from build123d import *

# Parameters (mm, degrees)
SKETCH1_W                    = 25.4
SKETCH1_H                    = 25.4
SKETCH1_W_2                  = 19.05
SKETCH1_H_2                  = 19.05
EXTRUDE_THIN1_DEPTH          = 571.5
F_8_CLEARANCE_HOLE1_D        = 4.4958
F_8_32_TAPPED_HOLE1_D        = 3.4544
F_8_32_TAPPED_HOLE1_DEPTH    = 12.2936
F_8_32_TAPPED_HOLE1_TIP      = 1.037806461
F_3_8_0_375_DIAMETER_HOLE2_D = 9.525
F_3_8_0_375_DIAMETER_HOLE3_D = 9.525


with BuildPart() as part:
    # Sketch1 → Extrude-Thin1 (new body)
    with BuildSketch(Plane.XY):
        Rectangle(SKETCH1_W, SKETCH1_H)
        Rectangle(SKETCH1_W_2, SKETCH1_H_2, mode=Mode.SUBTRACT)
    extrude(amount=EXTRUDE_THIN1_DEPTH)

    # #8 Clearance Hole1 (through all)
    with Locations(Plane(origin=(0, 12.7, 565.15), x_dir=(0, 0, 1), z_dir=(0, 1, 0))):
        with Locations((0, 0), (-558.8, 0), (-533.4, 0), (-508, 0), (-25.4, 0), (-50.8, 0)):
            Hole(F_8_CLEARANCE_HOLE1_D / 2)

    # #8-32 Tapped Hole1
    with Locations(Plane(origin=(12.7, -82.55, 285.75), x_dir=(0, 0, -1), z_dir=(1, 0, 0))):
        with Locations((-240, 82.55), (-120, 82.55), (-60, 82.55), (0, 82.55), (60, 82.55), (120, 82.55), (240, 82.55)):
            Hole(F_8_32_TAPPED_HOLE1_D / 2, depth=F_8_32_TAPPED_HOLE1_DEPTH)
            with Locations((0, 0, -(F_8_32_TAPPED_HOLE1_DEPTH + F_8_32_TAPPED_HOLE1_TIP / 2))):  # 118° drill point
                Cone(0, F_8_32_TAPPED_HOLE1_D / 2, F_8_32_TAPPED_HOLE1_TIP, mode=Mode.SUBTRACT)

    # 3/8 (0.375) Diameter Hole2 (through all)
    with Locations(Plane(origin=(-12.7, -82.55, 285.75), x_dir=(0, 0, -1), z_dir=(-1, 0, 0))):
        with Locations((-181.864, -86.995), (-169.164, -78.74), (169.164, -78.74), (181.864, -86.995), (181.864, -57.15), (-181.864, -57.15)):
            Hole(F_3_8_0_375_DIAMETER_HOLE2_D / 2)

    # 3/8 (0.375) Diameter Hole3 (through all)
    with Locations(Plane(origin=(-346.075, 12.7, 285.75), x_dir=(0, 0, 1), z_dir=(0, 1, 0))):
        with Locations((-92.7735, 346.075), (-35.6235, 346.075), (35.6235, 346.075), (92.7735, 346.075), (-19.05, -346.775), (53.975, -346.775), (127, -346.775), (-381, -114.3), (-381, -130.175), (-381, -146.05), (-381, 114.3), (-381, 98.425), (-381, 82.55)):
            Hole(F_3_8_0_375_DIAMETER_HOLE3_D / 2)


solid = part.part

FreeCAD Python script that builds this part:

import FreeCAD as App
import Part
import Sketcher
Q = App.Units.Quantity

doc = App.newDocument("Part")
body = doc.addObject("PartDesign::Body", "Body")

# Sketch on XY plane
sketch1 = body.newObject("Sketcher::SketchObject", "Sketch")
sketch1.AttachmentSupport = (doc.getObject("XY_Plane"), [""])
sketch1.MapMode = "FlatFace"
sketch1.addGeometry(Part.LineSegment(App.Vector(-13, 13, 0), App.Vector(-13, -13, 0)), False)
sketch1.addGeometry(Part.LineSegment(App.Vector(-13, -13, 0), App.Vector(13, -13, 0)), False)
sketch1.addGeometry(Part.LineSegment(App.Vector(13, -13, 0), App.Vector(13, 13, 0)), False)
sketch1.addGeometry(Part.LineSegment(App.Vector(13, 13, 0), App.Vector(-13, 13, 0)), False)
sketch1.addGeometry(Part.LineSegment(App.Vector(10, -10, 0), App.Vector(-10, -10, 0)), False)
sketch1.addGeometry(Part.LineSegment(App.Vector(-10, -10, 0), App.Vector(-10, 10, 0)), False)
sketch1.addGeometry(Part.LineSegment(App.Vector(-10, 10, 0), App.Vector(10, 10, 0)), False)
sketch1.addGeometry(Part.LineSegment(App.Vector(10, 10, 0), App.Vector(10, -10, 0)), False)
sketch1.addConstraint(Sketcher.Constraint("Coincident", 0, 2, 1, 1))
sketch1.addConstraint(Sketcher.Constraint("Coincident", 1, 2, 2, 1))
sketch1.addConstraint(Sketcher.Constraint("Coincident", 2, 2, 3, 1))
sketch1.addConstraint(Sketcher.Constraint("Coincident", 3, 2, 0, 1))
sketch1.addConstraint(Sketcher.Constraint("Coincident", 4, 2, 5, 1))
sketch1.addConstraint(Sketcher.Constraint("Coincident", 5, 2, 6, 1))
sketch1.addConstraint(Sketcher.Constraint("Coincident", 6, 2, 7, 1))
sketch1.addConstraint(Sketcher.Constraint("Coincident", 7, 2, 4, 1))
sketch1.addConstraint(Sketcher.Constraint("Vertical", 0))
sketch1.addConstraint(Sketcher.Constraint("Horizontal", 1))
sketch1.addConstraint(Sketcher.Constraint("Vertical", 2))
sketch1.addConstraint(Sketcher.Constraint("Horizontal", 3))
sketch1.addConstraint(Sketcher.Constraint("Horizontal", 4))
sketch1.addConstraint(Sketcher.Constraint("Vertical", 5))
sketch1.addConstraint(Sketcher.Constraint("Horizontal", 6))
sketch1.addConstraint(Sketcher.Constraint("Vertical", 7))
sketch1.addConstraint(Sketcher.Constraint("Symmetric", 0, 2, 2, 2, -1, 1))
sketch1.addConstraint(Sketcher.Constraint("Symmetric", 4, 2, 6, 2, -1, 1))
sketch1.addConstraint(Sketcher.Constraint("Equal", 3, 0))
sketch1.addConstraint(Sketcher.Constraint("Equal", 6, 5))
sketch1.addConstraint(Sketcher.Constraint("DistanceX", 1, 1, 1, 2, Q("1 in")))
sketch1.addConstraint(Sketcher.Constraint("DistanceX", 4, 2, 4, 1, Q("0.75 in")))
pad1 = body.newObject("PartDesign::Pad", "Pad")
pad1.Profile = sketch1
pad1.Length = Q("22.5 in")

# Sketch on XZ plane
sketch2 = body.newObject("Sketcher::SketchObject", "Sketch001")
sketch2.AttachmentSupport = (doc.getObject("XZ_Plane"), [""])
sketch2.MapMode = "FlatFace"
sketch2.AttachmentOffset = App.Placement(App.Vector(0, 0, -0.5 * 25.4), App.Rotation())
sketch2.addGeometry(Part.Circle(App.Vector(0, 565.1, 0), App.Vector(0, 0, 1), 2.2), False)
sketch2.addGeometry(Part.Circle(App.Vector(0, 6.3, 0), App.Vector(0, 0, 1), 2.2), False)
sketch2.addGeometry(Part.Circle(App.Vector(0, 31.8, 0), App.Vector(0, 0, 1), 2.2), False)
sketch2.addGeometry(Part.Circle(App.Vector(0, 57.1, 0), App.Vector(0, 0, 1), 2.2), False)
sketch2.addGeometry(Part.Circle(App.Vector(0, 539.8, 0), App.Vector(0, 0, 1), 2.2), False)
sketch2.addGeometry(Part.Circle(App.Vector(0, 514.4, 0), App.Vector(0, 0, 1), 2.2), False)
sketch2.addConstraint(Sketcher.Constraint("Equal", 0, 1))
sketch2.addConstraint(Sketcher.Constraint("Equal", 1, 2))
sketch2.addConstraint(Sketcher.Constraint("Equal", 2, 3))
sketch2.addConstraint(Sketcher.Constraint("Equal", 3, 4))
sketch2.addConstraint(Sketcher.Constraint("Equal", 4, 5))
sketch2.addConstraint(Sketcher.Constraint("PointOnObject", 0, 3, -2))
sketch2.addConstraint(Sketcher.Constraint("PointOnObject", 1, 3, -2))
sketch2.addConstraint(Sketcher.Constraint("PointOnObject", 2, 3, -2))
sketch2.addConstraint(Sketcher.Constraint("PointOnObject", 3, 3, -2))
sketch2.addConstraint(Sketcher.Constraint("PointOnObject", 4, 3, -2))
sketch2.addConstraint(Sketcher.Constraint("PointOnObject", 5, 3, -2))
sketch2.addConstraint(Sketcher.Constraint("Diameter", 0, Q("0.177 in")))
sketch2.addConstraint(Sketcher.Constraint("DistanceY", 1, 3, 0, 3, Q("22 in")))
sketch2.addConstraint(Sketcher.Constraint("DistanceY", 1, 3, 2, 3, Q("1 in")))
sketch2.addConstraint(Sketcher.Constraint("DistanceY", 2, 3, 3, 3, Q("1 in")))
sketch2.addConstraint(Sketcher.Constraint("DistanceY", 4, 3, 0, 3, Q("1 in")))
sketch2.addConstraint(Sketcher.Constraint("DistanceY", 5, 3, 4, 3, Q("1 in")))
sketch2.addConstraint(Sketcher.Constraint("DistanceY", -1, 1, 0, 3, Q("22.25 in")))
doc.recompute()
hole = body.newObject("PartDesign::Hole", "Hole")
hole.Profile = sketch2
hole.ThreadType = "None"
hole.Diameter = Q("0.177 in")
hole.DepthType = "ThroughAll"
hole.Reversed = True

# Sketch on YZ plane
sketch3 = body.newObject("Sketcher::SketchObject", "Sketch002")
sketch3.AttachmentSupport = (doc.getObject("YZ_Plane"), [""])
sketch3.MapMode = "FlatFace"
sketch3.AttachmentOffset = App.Placement(App.Vector(0, 0, 0.5 * 25.4), App.Rotation())
sketch3.addGeometry(Part.Circle(App.Vector(0, 525.8, 0), App.Vector(0, 0, 1), 1.7), False)
sketch3.addGeometry(Part.Circle(App.Vector(0, 405.8, 0), App.Vector(0, 0, 1), 1.7), False)
sketch3.addGeometry(Part.Circle(App.Vector(0, 345.8, 0), App.Vector(0, 0, 1), 1.7), False)
sketch3.addGeometry(Part.Circle(App.Vector(0, 285.8, 0), App.Vector(0, 0, 1), 1.7), False)
sketch3.addGeometry(Part.Circle(App.Vector(0, 225.8, 0), App.Vector(0, 0, 1), 1.7), False)
sketch3.addGeometry(Part.Circle(App.Vector(0, 165.8, 0), App.Vector(0, 0, 1), 1.7), False)
sketch3.addGeometry(Part.Circle(App.Vector(0, 45.8, 0), App.Vector(0, 0, 1), 1.7), False)
sketch3.addConstraint(Sketcher.Constraint("Equal", 0, 1))
sketch3.addConstraint(Sketcher.Constraint("Equal", 1, 2))
sketch3.addConstraint(Sketcher.Constraint("Equal", 2, 3))
sketch3.addConstraint(Sketcher.Constraint("Equal", 3, 4))
sketch3.addConstraint(Sketcher.Constraint("Equal", 4, 5))
sketch3.addConstraint(Sketcher.Constraint("Equal", 5, 6))
sketch3.addConstraint(Sketcher.Constraint("PointOnObject", 0, 3, -2))
sketch3.addConstraint(Sketcher.Constraint("PointOnObject", 1, 3, -2))
sketch3.addConstraint(Sketcher.Constraint("PointOnObject", 2, 3, -2))
sketch3.addConstraint(Sketcher.Constraint("PointOnObject", 3, 3, -2))
sketch3.addConstraint(Sketcher.Constraint("PointOnObject", 4, 3, -2))
sketch3.addConstraint(Sketcher.Constraint("PointOnObject", 5, 3, -2))
sketch3.addConstraint(Sketcher.Constraint("PointOnObject", 6, 3, -2))
sketch3.addConstraint(Sketcher.Constraint("Diameter", 0, Q("0.136 in")))
sketch3.addConstraint(Sketcher.Constraint("DistanceY", -1, 1, 3, 3, Q("11.25 in")))
sketch3.addConstraint(Sketcher.Constraint("DistanceY", -1, 1, 0, 3, 525.75))
sketch3.addConstraint(Sketcher.Constraint("DistanceY", -1, 1, 1, 3, 405.75))
sketch3.addConstraint(Sketcher.Constraint("DistanceY", -1, 1, 2, 3, 345.75))
sketch3.addConstraint(Sketcher.Constraint("DistanceY", -1, 1, 4, 3, 225.75))
sketch3.addConstraint(Sketcher.Constraint("DistanceY", -1, 1, 5, 3, 165.75))
sketch3.addConstraint(Sketcher.Constraint("DistanceY", -1, 1, 6, 3, 45.75))
doc.recompute()
hole2 = body.newObject("PartDesign::Hole", "Hole001")
hole2.Profile = sketch3
hole2.ThreadType = "None"
hole2.Diameter = Q("0.136 in")
hole2.DepthType = "Dimension"
hole2.Depth = Q("0.484 in")
hole2.DrillPoint = "Angled"
hole2.DrillPointAngle = 118

# Sketch on YZ plane
sketch4 = body.newObject("Sketcher::SketchObject", "Sketch003")
sketch4.AttachmentSupport = (doc.getObject("YZ_Plane"), [""])
sketch4.MapMode = "FlatFace"
sketch4.AttachmentOffset = App.Placement(App.Vector(0, 0, -0.5 * 25.4), App.Rotation())
sketch4.addGeometry(Part.Circle(App.Vector(4.4, 467.6, 0), App.Vector(0, 0, 1), 4.8), False)
sketch4.addGeometry(Part.Circle(App.Vector(-3.8, 454.9, 0), App.Vector(0, 0, 1), 4.8), False)
sketch4.addGeometry(Part.Circle(App.Vector(-3.8, 116.6, 0), App.Vector(0, 0, 1), 4.8), False)
sketch4.addGeometry(Part.Circle(App.Vector(4.4, 103.9, 0), App.Vector(0, 0, 1), 4.8), False)
sketch4.addGeometry(Part.Circle(App.Vector(-25.4, 103.9, 0), App.Vector(0, 0, 1), 4.8), False)
sketch4.addGeometry(Part.Circle(App.Vector(-25.4, 467.6, 0), App.Vector(0, 0, 1), 4.8), False)
sketch4.addConstraint(Sketcher.Constraint("Equal", 0, 1))
sketch4.addConstraint(Sketcher.Constraint("Equal", 1, 2))
sketch4.addConstraint(Sketcher.Constraint("Equal", 2, 3))
sketch4.addConstraint(Sketcher.Constraint("Equal", 3, 4))
sketch4.addConstraint(Sketcher.Constraint("Equal", 4, 5))
sketch4.addConstraint(Sketcher.Constraint("Horizontal", 3, 3, 4, 3))
sketch4.addConstraint(Sketcher.Constraint("Horizontal", 0, 3, 5, 3))
sketch4.addConstraint(Sketcher.Constraint("Vertical", 1, 3, 2, 3))
sketch4.addConstraint(Sketcher.Constraint("Vertical", 0, 3, 3, 3))
sketch4.addConstraint(Sketcher.Constraint("Vertical", 4, 3, 5, 3))
sketch4.addConstraint(Sketcher.Constraint("Diameter", 0, Q("0.375 in")))
sketch4.addConstraint(Sketcher.Constraint("DistanceX", 4, 3, -1, 1, Q("1 in")))
sketch4.addConstraint(Sketcher.Constraint("DistanceY", 1, 3, 0, 3, Q("0.5 in")))
sketch4.addConstraint(Sketcher.Constraint("DistanceY", 3, 3, 2, 3, Q("0.5 in")))
sketch4.addConstraint(Sketcher.Constraint("DistanceY", -1, 1, 0, 3, Q("18.41 in")))
sketch4.addConstraint(Sketcher.Constraint("DistanceX", 1, 3, -1, 1, Q("0.15 in")))
sketch4.addConstraint(Sketcher.Constraint("DistanceY", -1, 1, 2, 3, Q("4.59 in")))
sketch4.addConstraint(Sketcher.Constraint("DistanceX", -1, 1, 0, 3, Q("0.175 in")))
doc.recompute()
hole3 = body.newObject("PartDesign::Hole", "Hole002")
hole3.Profile = sketch4
hole3.ThreadType = "None"
hole3.Diameter = Q("0.375 in")
hole3.DepthType = "ThroughAll"
hole3.Reversed = True

# Sketch on XZ plane
sketch5 = body.newObject("Sketcher::SketchObject", "Sketch004")
sketch5.AttachmentSupport = (doc.getObject("XZ_Plane"), [""])
sketch5.MapMode = "FlatFace"
sketch5.AttachmentOffset = App.Placement(App.Vector(0, 0, -0.5 * 25.4), App.Rotation())
sketch5.addGeometry(Part.Circle(App.Vector(0, 193, 0), App.Vector(0, 0, 1), 4.8), False)
sketch5.addGeometry(Part.Circle(App.Vector(0, 250.1, 0), App.Vector(0, 0, 1), 4.8), False)
sketch5.addGeometry(Part.Circle(App.Vector(0, 321.4, 0), App.Vector(0, 0, 1), 4.8), False)
sketch5.addGeometry(Part.Circle(App.Vector(0, 378.5, 0), App.Vector(0, 0, 1), 4.8), False)
sketch5.addGeometry(Part.Circle(App.Vector(-692.9, 266.7, 0), App.Vector(0, 0, 1), 4.8), False)
sketch5.addGeometry(Part.Circle(App.Vector(-692.9, 339.7, 0), App.Vector(0, 0, 1), 4.8), False)
sketch5.addGeometry(Part.Circle(App.Vector(-692.9, 412.8, 0), App.Vector(0, 0, 1), 4.8), False)
sketch5.addGeometry(Part.Circle(App.Vector(-460.4, -95.2, 0), App.Vector(0, 0, 1), 4.8), False)
sketch5.addGeometry(Part.Circle(App.Vector(-476.2, -95.2, 0), App.Vector(0, 0, 1), 4.8), False)
sketch5.addGeometry(Part.Circle(App.Vector(-492.1, -95.2, 0), App.Vector(0, 0, 1), 4.8), False)
sketch5.addGeometry(Part.Circle(App.Vector(-231.8, -95.2, 0), App.Vector(0, 0, 1), 4.8), False)
sketch5.addGeometry(Part.Circle(App.Vector(-247.7, -95.2, 0), App.Vector(0, 0, 1), 4.8), False)
sketch5.addGeometry(Part.Circle(App.Vector(-263.5, -95.2, 0), App.Vector(0, 0, 1), 4.8), False)
sketch5.addConstraint(Sketcher.Constraint("Equal", 0, 1))
sketch5.addConstraint(Sketcher.Constraint("Equal", 1, 2))
sketch5.addConstraint(Sketcher.Constraint("Equal", 2, 3))
sketch5.addConstraint(Sketcher.Constraint("Equal", 3, 4))
sketch5.addConstraint(Sketcher.Constraint("Equal", 4, 5))
sketch5.addConstraint(Sketcher.Constraint("Equal", 5, 6))
sketch5.addConstraint(Sketcher.Constraint("Equal", 6, 7))
sketch5.addConstraint(Sketcher.Constraint("Equal", 7, 8))
sketch5.addConstraint(Sketcher.Constraint("Equal", 8, 9))
sketch5.addConstraint(Sketcher.Constraint("Equal", 9, 10))
sketch5.addConstraint(Sketcher.Constraint("Equal", 10, 11))
sketch5.addConstraint(Sketcher.Constraint("Equal", 11, 12))
sketch5.addConstraint(Sketcher.Constraint("PointOnObject", 0, 3, -2))
sketch5.addConstraint(Sketcher.Constraint("PointOnObject", 1, 3, -2))
sketch5.addConstraint(Sketcher.Constraint("PointOnObject", 2, 3, -2))
sketch5.addConstraint(Sketcher.Constraint("PointOnObject", 3, 3, -2))
sketch5.addConstraint(Sketcher.Constraint("Horizontal", 7, 3, 8, 3))
sketch5.addConstraint(Sketcher.Constraint("Horizontal", 8, 3, 9, 3))
sketch5.addConstraint(Sketcher.Constraint("Horizontal", 9, 3, 10, 3))
sketch5.addConstraint(Sketcher.Constraint("Horizontal", 10, 3, 11, 3))
sketch5.addConstraint(Sketcher.Constraint("Horizontal", 11, 3, 12, 3))
sketch5.addConstraint(Sketcher.Constraint("Vertical", 4, 3, 5, 3))
sketch5.addConstraint(Sketcher.Constraint("Vertical", 5, 3, 6, 3))
sketch5.addConstraint(Sketcher.Constraint("Diameter", 0, Q("0.375 in")))
sketch5.addConstraint(Sketcher.Constraint("DistanceY", 7, 3, 6, 3, Q("20 in")))
sketch5.addConstraint(Sketcher.Constraint("DistanceX", 7, 3, 10, 3, Q("9 in")))
sketch5.addConstraint(Sketcher.Constraint("DistanceX", 8, 3, 11, 3, Q("9 in")))
sketch5.addConstraint(Sketcher.Constraint("DistanceX", 9, 3, 12, 3, Q("9 in")))
sketch5.addConstraint(Sketcher.Constraint("DistanceY", -1, 1, 4, 3, Q("10.5 in")))
sketch5.addConstraint(Sketcher.Constraint("DistanceY", -1, 1, 6, 3, Q("16.25 in")))
sketch5.addConstraint(Sketcher.Constraint("DistanceX", 8, 3, -1, 1, Q("18.75 in")))
sketch5.addConstraint(Sketcher.Constraint("DistanceY", 0, 3, 1, 3, Q("2.25 in")))
sketch5.addConstraint(Sketcher.Constraint("DistanceY", 2, 3, 3, 3, Q("2.25 in")))
sketch5.addConstraint(Sketcher.Constraint("DistanceX", 9, 3, 7, 3, Q("1.25 in")))
sketch5.addConstraint(Sketcher.Constraint("DistanceY", -1, 1, 5, 3, Q("13.375 in")))
sketch5.addConstraint(Sketcher.Constraint("DistanceX", 7, 3, -1, 1, Q("18.125 in")))
sketch5.addConstraint(Sketcher.Constraint("DistanceY", 1, 3, 2, 3, Q("2.805 in")))
sketch5.addConstraint(Sketcher.Constraint("DistanceY", -1, 1, 0, 3, Q("7.5975 in")))
sketch5.addConstraint(Sketcher.Constraint("DistanceX", 4, 3, -1, 1, 692.85))
doc.recompute()
hole4 = body.newObject("PartDesign::Hole", "Hole003")
hole4.Profile = sketch5
hole4.ThreadType = "None"
hole4.Diameter = Q("0.375 in")
hole4.DepthType = "ThroughAll"
hole4.Reversed = True

doc.recompute()
